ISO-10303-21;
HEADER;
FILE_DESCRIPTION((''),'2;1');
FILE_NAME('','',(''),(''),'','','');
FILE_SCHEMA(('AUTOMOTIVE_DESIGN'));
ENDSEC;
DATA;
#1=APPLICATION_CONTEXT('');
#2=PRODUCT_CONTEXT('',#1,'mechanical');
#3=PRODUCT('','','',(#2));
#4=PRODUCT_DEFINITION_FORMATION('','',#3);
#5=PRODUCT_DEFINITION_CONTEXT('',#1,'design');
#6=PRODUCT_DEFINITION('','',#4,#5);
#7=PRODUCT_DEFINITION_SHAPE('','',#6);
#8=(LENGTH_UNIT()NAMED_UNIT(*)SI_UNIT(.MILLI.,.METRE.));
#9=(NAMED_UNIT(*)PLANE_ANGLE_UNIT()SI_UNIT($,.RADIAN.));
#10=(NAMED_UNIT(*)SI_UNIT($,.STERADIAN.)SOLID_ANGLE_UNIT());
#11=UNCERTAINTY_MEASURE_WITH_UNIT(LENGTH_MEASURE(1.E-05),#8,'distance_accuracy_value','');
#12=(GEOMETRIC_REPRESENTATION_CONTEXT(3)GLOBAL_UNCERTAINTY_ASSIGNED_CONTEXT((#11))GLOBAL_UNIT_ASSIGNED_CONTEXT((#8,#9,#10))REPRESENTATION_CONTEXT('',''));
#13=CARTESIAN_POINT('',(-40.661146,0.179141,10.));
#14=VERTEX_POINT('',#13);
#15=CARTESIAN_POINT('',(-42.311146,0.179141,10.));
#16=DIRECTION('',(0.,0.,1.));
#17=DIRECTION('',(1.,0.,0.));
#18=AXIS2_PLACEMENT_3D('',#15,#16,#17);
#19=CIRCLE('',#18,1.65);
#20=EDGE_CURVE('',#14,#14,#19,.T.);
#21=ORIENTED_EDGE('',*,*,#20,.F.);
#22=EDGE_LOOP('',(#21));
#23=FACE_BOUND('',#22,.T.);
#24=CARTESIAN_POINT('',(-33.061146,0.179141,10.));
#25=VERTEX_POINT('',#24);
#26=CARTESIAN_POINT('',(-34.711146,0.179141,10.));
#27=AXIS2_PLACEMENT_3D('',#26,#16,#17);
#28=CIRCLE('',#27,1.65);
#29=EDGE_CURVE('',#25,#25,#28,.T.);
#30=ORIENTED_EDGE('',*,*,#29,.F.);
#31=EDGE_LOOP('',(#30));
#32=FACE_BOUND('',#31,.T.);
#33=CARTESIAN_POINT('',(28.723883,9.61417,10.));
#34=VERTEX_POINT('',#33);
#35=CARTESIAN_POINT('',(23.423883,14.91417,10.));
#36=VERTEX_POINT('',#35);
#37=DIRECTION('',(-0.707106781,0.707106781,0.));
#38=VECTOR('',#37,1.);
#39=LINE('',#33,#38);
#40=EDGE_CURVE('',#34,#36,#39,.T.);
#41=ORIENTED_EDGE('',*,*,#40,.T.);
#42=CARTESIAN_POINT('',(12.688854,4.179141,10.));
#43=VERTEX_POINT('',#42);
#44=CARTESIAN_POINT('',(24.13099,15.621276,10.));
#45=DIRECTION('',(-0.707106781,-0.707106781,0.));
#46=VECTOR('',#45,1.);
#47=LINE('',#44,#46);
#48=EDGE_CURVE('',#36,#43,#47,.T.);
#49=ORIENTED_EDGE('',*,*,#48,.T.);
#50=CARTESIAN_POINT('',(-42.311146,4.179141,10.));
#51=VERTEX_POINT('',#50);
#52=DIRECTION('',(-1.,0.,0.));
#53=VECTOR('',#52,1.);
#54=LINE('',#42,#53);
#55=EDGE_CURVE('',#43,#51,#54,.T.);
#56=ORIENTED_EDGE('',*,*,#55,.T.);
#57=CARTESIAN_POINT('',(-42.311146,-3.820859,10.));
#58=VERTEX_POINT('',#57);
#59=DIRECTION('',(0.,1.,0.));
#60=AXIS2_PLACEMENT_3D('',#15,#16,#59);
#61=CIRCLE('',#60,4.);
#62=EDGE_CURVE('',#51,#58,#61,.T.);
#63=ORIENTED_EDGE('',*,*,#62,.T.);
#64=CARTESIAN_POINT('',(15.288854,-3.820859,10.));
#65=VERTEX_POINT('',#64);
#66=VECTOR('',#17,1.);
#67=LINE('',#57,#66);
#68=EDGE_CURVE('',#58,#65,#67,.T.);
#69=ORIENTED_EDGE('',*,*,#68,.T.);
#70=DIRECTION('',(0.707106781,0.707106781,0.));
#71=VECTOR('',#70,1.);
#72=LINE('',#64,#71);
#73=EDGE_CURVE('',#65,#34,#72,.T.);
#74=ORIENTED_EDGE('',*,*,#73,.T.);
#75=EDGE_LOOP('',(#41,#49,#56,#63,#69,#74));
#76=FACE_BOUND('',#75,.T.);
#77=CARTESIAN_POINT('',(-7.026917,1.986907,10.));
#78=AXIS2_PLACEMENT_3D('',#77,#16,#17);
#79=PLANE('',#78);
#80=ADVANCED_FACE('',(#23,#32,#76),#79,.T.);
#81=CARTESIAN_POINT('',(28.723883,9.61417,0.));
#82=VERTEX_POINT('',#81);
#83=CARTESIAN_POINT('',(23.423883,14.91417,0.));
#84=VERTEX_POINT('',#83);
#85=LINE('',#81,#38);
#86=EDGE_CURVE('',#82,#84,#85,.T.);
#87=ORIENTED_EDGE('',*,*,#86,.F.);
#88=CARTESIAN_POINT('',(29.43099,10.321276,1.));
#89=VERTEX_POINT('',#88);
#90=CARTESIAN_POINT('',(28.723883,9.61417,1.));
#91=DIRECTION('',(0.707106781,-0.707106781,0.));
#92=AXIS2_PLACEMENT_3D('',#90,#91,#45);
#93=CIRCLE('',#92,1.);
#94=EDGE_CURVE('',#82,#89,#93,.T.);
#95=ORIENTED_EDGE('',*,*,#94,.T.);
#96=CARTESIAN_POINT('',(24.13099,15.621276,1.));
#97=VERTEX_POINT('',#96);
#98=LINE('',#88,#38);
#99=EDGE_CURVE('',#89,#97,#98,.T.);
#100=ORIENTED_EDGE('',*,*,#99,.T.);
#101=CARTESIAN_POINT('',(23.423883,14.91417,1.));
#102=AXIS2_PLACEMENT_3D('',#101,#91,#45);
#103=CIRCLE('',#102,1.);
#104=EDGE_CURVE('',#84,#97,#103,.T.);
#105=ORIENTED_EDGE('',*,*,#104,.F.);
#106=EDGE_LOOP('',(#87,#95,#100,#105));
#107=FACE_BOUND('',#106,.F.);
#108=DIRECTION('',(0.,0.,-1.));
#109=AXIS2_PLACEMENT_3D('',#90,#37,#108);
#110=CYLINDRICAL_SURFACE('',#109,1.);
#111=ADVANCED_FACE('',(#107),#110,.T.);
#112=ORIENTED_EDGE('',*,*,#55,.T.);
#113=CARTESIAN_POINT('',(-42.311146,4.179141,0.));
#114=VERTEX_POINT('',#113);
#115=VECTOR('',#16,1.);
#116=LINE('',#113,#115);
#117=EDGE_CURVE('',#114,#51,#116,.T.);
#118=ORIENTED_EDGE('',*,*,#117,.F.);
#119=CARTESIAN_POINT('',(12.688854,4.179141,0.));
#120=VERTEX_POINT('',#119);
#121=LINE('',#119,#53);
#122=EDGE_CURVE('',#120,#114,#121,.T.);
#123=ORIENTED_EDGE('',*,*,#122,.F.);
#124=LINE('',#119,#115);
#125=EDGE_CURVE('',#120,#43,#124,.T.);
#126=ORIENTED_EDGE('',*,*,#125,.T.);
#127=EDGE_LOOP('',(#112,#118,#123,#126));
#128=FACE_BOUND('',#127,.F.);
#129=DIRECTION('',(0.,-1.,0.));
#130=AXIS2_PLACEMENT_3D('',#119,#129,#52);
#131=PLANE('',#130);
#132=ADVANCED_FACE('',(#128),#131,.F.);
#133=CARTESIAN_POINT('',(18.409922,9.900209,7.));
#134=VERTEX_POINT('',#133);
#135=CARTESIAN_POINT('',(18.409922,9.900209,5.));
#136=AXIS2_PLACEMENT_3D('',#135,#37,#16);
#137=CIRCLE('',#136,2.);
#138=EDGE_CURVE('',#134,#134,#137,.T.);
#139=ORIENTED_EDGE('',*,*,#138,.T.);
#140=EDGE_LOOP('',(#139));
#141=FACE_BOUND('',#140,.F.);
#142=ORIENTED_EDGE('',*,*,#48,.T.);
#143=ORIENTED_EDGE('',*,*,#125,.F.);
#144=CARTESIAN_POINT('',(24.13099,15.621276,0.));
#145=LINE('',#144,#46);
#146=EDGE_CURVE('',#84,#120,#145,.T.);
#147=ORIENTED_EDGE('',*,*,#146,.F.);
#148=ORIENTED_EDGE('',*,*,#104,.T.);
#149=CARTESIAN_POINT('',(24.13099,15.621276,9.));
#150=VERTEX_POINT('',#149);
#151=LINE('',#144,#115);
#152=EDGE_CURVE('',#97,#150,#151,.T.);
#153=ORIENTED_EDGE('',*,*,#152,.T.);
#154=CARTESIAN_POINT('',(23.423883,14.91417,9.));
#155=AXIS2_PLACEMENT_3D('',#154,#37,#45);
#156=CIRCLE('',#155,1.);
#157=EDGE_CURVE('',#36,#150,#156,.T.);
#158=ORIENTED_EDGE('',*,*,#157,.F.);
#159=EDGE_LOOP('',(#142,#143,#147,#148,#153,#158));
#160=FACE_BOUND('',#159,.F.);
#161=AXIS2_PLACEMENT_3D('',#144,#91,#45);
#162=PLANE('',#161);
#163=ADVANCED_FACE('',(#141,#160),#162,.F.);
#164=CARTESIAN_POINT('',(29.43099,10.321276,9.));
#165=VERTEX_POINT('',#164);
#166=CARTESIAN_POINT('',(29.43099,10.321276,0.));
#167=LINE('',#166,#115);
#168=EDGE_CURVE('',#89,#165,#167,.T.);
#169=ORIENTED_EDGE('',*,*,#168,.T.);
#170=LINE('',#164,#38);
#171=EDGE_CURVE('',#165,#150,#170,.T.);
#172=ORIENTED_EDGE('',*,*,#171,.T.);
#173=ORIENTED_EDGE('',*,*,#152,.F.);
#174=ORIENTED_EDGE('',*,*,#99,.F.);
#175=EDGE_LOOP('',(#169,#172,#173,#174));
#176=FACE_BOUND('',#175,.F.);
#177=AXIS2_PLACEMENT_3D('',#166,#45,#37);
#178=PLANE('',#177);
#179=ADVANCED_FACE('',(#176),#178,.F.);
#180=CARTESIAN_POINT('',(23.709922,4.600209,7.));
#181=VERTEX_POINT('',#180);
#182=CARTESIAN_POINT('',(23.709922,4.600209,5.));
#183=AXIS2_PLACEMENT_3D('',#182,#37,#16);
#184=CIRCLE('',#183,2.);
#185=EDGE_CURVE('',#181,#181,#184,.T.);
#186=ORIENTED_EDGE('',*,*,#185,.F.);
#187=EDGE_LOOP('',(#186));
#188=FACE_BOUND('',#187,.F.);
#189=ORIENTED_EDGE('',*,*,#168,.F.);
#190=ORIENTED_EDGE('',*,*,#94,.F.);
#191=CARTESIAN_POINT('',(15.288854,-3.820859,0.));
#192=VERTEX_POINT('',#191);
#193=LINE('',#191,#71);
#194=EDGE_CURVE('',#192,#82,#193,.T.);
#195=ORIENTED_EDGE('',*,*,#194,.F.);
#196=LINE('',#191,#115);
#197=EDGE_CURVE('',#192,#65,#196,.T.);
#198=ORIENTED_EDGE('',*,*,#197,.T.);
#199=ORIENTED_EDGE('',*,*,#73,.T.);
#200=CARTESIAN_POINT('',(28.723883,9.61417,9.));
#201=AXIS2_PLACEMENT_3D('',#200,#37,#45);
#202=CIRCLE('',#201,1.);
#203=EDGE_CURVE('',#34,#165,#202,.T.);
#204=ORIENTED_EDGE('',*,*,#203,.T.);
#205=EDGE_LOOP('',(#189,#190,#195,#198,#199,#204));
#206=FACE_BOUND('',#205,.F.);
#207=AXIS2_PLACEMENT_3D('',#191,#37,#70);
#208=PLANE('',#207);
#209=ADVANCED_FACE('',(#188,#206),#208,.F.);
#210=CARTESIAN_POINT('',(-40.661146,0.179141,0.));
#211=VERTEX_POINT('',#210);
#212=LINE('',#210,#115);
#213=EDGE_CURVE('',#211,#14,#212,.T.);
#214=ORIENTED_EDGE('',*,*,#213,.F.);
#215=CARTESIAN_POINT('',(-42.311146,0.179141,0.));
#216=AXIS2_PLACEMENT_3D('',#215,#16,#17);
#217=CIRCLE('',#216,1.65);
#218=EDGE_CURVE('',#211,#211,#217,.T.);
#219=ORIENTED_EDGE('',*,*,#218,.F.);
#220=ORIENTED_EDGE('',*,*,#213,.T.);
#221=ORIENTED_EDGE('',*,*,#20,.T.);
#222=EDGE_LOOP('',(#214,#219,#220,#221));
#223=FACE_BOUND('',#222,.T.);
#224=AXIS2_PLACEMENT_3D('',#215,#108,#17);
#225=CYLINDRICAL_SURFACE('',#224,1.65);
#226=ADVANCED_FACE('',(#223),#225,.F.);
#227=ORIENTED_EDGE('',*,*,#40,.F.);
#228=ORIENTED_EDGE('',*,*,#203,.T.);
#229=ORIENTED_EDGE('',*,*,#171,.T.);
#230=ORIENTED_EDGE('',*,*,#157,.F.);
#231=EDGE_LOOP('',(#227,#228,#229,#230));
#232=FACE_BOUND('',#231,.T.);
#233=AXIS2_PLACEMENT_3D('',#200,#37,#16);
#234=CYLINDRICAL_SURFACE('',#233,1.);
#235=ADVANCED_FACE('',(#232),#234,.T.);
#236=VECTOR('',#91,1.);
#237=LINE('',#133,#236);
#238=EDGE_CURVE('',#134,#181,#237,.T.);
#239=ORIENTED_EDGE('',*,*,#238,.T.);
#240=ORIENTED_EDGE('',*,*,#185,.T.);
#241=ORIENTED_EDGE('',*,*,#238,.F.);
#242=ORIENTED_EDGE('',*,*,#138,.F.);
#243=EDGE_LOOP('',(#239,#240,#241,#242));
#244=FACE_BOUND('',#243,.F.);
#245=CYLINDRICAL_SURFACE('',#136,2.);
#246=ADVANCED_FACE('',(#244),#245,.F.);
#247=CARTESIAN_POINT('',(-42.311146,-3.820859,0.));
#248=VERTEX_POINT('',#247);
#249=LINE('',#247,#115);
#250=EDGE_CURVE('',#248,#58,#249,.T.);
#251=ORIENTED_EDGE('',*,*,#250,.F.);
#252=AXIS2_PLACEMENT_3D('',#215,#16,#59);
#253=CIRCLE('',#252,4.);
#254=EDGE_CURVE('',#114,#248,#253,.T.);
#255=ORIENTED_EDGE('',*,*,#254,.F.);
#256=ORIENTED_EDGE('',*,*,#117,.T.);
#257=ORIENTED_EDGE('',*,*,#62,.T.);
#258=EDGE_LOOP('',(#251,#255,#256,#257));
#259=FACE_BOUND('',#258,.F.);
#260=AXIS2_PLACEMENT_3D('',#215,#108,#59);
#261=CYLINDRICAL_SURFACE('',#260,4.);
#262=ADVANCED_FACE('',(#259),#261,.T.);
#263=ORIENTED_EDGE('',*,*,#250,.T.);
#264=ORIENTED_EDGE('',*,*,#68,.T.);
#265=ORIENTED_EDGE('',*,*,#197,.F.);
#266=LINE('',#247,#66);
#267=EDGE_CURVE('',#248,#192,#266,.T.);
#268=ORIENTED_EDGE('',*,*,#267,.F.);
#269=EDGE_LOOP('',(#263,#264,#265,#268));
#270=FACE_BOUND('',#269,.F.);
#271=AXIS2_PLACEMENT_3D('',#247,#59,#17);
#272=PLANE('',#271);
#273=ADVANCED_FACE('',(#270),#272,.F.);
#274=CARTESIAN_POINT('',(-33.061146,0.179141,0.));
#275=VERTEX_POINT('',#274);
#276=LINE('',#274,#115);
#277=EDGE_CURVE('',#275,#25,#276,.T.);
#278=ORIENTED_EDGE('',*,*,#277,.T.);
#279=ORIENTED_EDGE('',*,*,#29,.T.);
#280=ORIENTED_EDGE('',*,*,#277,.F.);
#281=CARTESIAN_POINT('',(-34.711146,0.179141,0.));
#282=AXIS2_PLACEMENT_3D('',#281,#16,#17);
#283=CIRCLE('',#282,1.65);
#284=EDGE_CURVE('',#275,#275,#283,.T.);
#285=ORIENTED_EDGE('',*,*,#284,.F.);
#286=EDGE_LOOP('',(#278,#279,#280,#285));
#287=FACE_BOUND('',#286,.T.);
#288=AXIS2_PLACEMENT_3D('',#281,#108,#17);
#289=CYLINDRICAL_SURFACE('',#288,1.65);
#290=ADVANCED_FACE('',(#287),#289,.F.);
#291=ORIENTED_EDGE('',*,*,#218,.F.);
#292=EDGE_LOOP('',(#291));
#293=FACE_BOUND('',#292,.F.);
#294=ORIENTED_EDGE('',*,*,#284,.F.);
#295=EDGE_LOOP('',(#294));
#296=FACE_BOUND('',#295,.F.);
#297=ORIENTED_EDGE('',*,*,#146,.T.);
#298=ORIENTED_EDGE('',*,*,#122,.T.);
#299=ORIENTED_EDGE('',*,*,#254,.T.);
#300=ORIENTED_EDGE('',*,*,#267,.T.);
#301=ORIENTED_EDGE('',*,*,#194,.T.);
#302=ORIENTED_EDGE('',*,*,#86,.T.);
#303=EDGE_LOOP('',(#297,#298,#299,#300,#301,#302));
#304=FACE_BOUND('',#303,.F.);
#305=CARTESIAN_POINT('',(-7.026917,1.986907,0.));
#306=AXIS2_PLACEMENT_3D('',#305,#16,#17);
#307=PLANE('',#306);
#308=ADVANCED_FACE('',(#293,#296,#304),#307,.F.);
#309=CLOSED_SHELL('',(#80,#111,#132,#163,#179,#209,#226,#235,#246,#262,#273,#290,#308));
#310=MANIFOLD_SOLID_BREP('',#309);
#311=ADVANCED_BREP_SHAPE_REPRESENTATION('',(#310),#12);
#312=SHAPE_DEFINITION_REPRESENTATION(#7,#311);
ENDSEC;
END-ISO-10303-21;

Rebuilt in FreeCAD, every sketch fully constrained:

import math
import FreeCAD as App
import Part
import Sketcher
Q = App.Units.Quantity


def edges_at(feature, points):
    """Names of the edges that pass closest to the given points."""
    edges = feature.Shape.Edges
    near = lambda p: min(range(len(edges)), key=lambda i: edges[i].distToShape(Part.Vertex(*p))[0])
    return sorted({f"Edge{near(p) + 1}" for p in points})

doc = App.newDocument("Part")
body = doc.addObject("PartDesign::Body", "Body")

# Sketch on XY plane
sketch1 = body.newObject("Sketcher::SketchObject", "Sketch")
sketch1.AttachmentSupport = (doc.getObject("XY_Plane"), [""])
sketch1.MapMode = "FlatFace"
sketch1.addGeometry([
    Part.LineSegment(App.Vector(12.7, 4.2, 0), App.Vector(-42.3, 4.2, 0)),  # 0
    Part.ArcOfCircle(Part.Circle(App.Vector(-42.3, 0.2, 0), App.Vector(0, 0, 1), 4), math.radians(90), math.radians(270)),  # 1
    Part.LineSegment(App.Vector(-42.3, -3.8, 0), App.Vector(15.3, -3.8, 0)),  # 2
    Part.LineSegment(App.Vector(15.3, -3.8, 0), App.Vector(29.4, 10.3, 0)),  # 3
    Part.LineSegment(App.Vector(29.4, 10.3, 0), App.Vector(24.1, 15.6, 0)),  # 4
    Part.LineSegment(App.Vector(24.1, 15.6, 0), App.Vector(12.7, 4.2, 0)),  # 5
    Part.Circle(App.Vector(-42.3, 0.2, 0), App.Vector(0, 0, 1), 1.6),  # 6
    Part.Circle(App.Vector(-34.7, 0.2, 0), App.Vector(0, 0, 1), 1.6),  # 7
], False)
sketch1.addConstraint([
    Sketcher.Constraint("Tangent", 0, 2, 1, 1),
    Sketcher.Constraint("Tangent", 1, 2, 2, 1),
    Sketcher.Constraint("Coincident", 2, 2, 3, 1),
    Sketcher.Constraint("Coincident", 3, 2, 4, 1),
    Sketcher.Constraint("Coincident", 4, 2, 5, 1),
    Sketcher.Constraint("Coincident", 5, 2, 0, 1),
    Sketcher.Constraint("Horizontal", 0),
    Sketcher.Constraint("Horizontal", 2),
    Sketcher.Constraint("Coincident", 6, 3, 1, 3),
    Sketcher.Constraint("Equal", 6, 7),
    Sketcher.Constraint("Perpendicular", 3, 4),
    Sketcher.Constraint("Perpendicular", 4, 5),
    Sketcher.Constraint("Horizontal", 6, 3, 7, 3),
    Sketcher.Constraint("Radius", 1, Q("4 mm")),
    Sketcher.Constraint("Diameter", 6, Q("3.3 mm")),
    Sketcher.Constraint("DistanceX", 0, 2, 0, 1, Q("55 mm")),
    Sketcher.Constraint("Angle", 3, Q("45 deg")),
    Sketcher.Constraint("Distance", 3, Q("20 mm")),
    Sketcher.Constraint("DistanceX", 2, 1, 2, 2, Q("57.6 mm")),
    Sketcher.Constraint("DistanceX", 7, 3, 2, 2, Q("50 mm")),
    Sketcher.Constraint("DistanceY", -1, 1, 1, 3, Q("0.179141 mm")),
    Sketcher.Constraint("DistanceX", -1, 1, 3, 2, Q("29.43099 mm")),
])
pad1 = body.newObject("PartDesign::Pad", "Pad")
pad1.Profile = sketch1
pad1.Length = 10

# Sketch on an angled plane
sketch2 = body.newObject("Sketcher::SketchObject", "Sketch001")
sketch2.Placement = App.Placement(App.Vector(4.254857, -4.254857, 0), App.Rotation(App.Vector(0, 0, 1), App.Vector(0.707106781, 0.707106781, 0), App.Vector(-0.707106781, 0.707106781, 0), "ZXY"))
sketch2.addGeometry(Part.Circle(App.Vector(5, 20, 0), App.Vector(0, 0, 1), 2), False)
sketch2.addConstraint([
    Sketcher.Constraint("Diameter", 0, Q("4 mm")),
    Sketcher.Constraint("DistanceX", -1, 1, 0, 3, Q("5 mm")),
    Sketcher.Constraint("DistanceY", -1, 1, 0, 3, Q("20.018285 mm")),
])
pocket1 = body.newObject("PartDesign::Pocket", "Pocket")
pocket1.Profile = sketch2
pocket1.Type = "ThroughAll"
doc.recompute()

fillet = body.newObject("PartDesign::Fillet", "Fillet")
fillet.Base = (pocket1, edges_at(pocket1, [(26.781, 12.971, 0), (26.781, 12.971, 10)]))
fillet.Radius = 1

doc.recompute()
